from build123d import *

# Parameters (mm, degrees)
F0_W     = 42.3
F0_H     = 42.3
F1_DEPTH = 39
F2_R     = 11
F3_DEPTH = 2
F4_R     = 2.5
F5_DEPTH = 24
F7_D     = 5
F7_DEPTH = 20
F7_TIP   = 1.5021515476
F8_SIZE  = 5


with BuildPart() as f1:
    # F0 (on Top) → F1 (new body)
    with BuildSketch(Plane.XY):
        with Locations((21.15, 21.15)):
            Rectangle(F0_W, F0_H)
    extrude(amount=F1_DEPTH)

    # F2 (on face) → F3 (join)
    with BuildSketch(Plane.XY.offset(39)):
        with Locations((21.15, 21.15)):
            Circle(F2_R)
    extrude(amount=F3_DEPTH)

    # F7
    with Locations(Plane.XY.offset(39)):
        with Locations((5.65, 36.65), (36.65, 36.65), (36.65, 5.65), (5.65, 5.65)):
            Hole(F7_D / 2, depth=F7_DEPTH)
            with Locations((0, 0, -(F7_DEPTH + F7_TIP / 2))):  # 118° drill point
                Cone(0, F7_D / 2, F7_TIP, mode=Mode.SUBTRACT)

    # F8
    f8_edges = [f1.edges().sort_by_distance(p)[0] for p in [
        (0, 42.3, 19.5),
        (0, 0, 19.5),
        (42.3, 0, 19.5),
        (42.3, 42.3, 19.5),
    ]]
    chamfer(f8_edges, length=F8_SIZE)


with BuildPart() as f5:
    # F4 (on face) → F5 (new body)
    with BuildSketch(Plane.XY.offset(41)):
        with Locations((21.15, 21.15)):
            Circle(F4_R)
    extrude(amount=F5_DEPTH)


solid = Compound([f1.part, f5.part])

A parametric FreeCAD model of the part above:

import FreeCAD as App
import Part
import Sketcher


def edges_at(feature, points):
    """Names of the edges that pass closest to the given points."""
    edges = feature.Shape.Edges
    near = lambda p: min(range(len(edges)), key=lambda i: edges[i].distToShape(Part.Vertex(*p))[0])
    return sorted({f"Edge{near(p) + 1}" for p in points})


def add_polygon(sketch, points):
    """Adds a closed chain of lines whose ends are joined by coincident constraints."""
    first, n = sketch.GeometryCount, len(points)
    for a, b in zip(points, points[1:] + points[:1]):
        sketch.addGeometry(Part.LineSegment(App.Vector(*a, 0), App.Vector(*b, 0)), False)
    for i in range(n):
        sketch.addConstraint(Sketcher.Constraint("Coincident", first + i, 2, first + (i + 1) % n, 1))

doc = App.newDocument("Part")
body = doc.addObject("PartDesign::Body", "Body")

# Sketch on XY plane
sketch1 = doc.addObject("Sketcher::SketchObject", "Sketch")
body.addObject(sketch1)
sketch1.AttachmentSupport = (doc.XY_Plane, [""])
sketch1.MapMode = "FlatFace"
add_polygon(sketch1, [(0, 42.3), (0, 0), (42.3, 0), (42.3, 42.3)])  # lines 0-3
sketch1.addConstraint(Sketcher.Constraint("Vertical", 0))
sketch1.addConstraint(Sketcher.Constraint("Horizontal", 1))
sketch1.addConstraint(Sketcher.Constraint("Vertical", 2))
sketch1.addConstraint(Sketcher.Constraint("Horizontal", 3))
sketch1.addConstraint(Sketcher.Constraint("Coincident", 0, 2, -1, 1))
sketch1.addConstraint(Sketcher.Constraint("Equal", 3, 0))
sketch1.addConstraint(Sketcher.Constraint("DistanceX", 1, 1, 1, 2, 42.3))
pad1 = doc.addObject("PartDesign::Pad", "Pad")
body.addObject(pad1)
pad1.Profile = sketch1
pad1.Length = 39

# Sketch on XY plane
sketch2 = doc.addObject("Sketcher::SketchObject", "Sketch001")
body.addObject(sketch2)
sketch2.AttachmentSupport = (doc.XY_Plane, [""])
sketch2.MapMode = "FlatFace"
sketch2.AttachmentOffset = App.Placement(App.Vector(0, 0, 39), App.Rotation())
sketch2.addGeometry(Part.Circle(App.Vector(21.15, 21.15, 0), App.Vector(0, 0, 1), 11), False)
sketch2.addConstraint(Sketcher.Constraint("Diameter", 0, 22.0))
sketch2.addConstraint(Sketcher.Constraint("DistanceX", -1, 1, 0, 3, 21.15))
sketch2.addConstraint(Sketcher.Constraint("DistanceY", -1, 1, 0, 3, 21.15))
pad2 = doc.addObject("PartDesign::Pad", "Pad001")
body.addObject(pad2)
pad2.Profile = sketch2
pad2.Length = 2

# Sketch on XY plane
sketch3 = doc.addObject("Sketcher::SketchObject", "Sketch002")
body.addObject(sketch3)
sketch3.AttachmentSupport = (doc.XY_Plane, [""])
sketch3.MapMode = "FlatFace"
sketch3.AttachmentOffset = App.Placement(App.Vector(0, 0, 39), App.Rotation())
sketch3.addGeometry(Part.Circle(App.Vector(5.65, 36.65, 0), App.Vector(0, 0, 1), 2.5), False)
sketch3.addGeometry(Part.Circle(App.Vector(36.65, 36.65, 0), App.Vector(0, 0, 1), 2.5), False)
sketch3.addGeometry(Part.Circle(App.Vector(36.65, 5.65, 0), App.Vector(0, 0, 1), 2.5), False)
sketch3.addGeometry(Part.Circle(App.Vector(5.65, 5.65, 0), App.Vector(0, 0, 1), 2.5), False)
sketch3.addConstraint(Sketcher.Constraint("Equal", 0, 1))
sketch3.addConstraint(Sketcher.Constraint("Equal", 1, 2))
sketch3.addConstraint(Sketcher.Constraint("Equal", 2, 3))
sketch3.addConstraint(Sketcher.Constraint("Horizontal", 0, 3, 1, 3))
sketch3.addConstraint(Sketcher.Constraint("Horizontal", 2, 3, 3, 3))
sketch3.addConstraint(Sketcher.Constraint("Vertical", 1, 3, 2, 3))
sketch3.addConstraint(Sketcher.Constraint("Vertical", 0, 3, 3, 3))
sketch3.addConstraint(Sketcher.Constraint("Diameter", 0, 5.0))
sketch3.addConstraint(Sketcher.Constraint("DistanceX", 0, 3, 1, 3, 31.0))
sketch3.addConstraint(Sketcher.Constraint("DistanceY", 2, 3, 1, 3, 31.0))
sketch3.addConstraint(Sketcher.Constraint("DistanceX", -1, 1, 0, 3, 5.65))
sketch3.addConstraint(Sketcher.Constraint("DistanceY", -1, 1, 0, 3, 36.65))
doc.recompute()
hole = doc.addObject("PartDesign::Hole", "Hole")
body.addObject(hole)
hole.Profile = sketch3
hole.ThreadType = "None"
hole.Diameter = 5
hole.DepthType = "Dimension"
hole.Depth = 20
hole.DrillPoint = "Angled"
hole.DrillPointAngle = 118
doc.recompute()

chamfer = doc.addObject("PartDesign::Chamfer", "Chamfer")
body.addObject(chamfer)
chamfer.Base = (hole, edges_at(hole, [
    (0, 42.3, 19.5),
    (0, 0, 19.5),
    (42.3, 0, 19.5),
    (42.3, 42.3, 19.5),
]))
chamfer.Size = 5
body2 = doc.addObject("PartDesign::Body", "Body001")

# Sketch on XY plane
sketch4 = doc.addObject("Sketcher::SketchObject", "Sketch003")
body2.addObject(sketch4)
sketch4.AttachmentSupport = (doc.getObject("XY_Plane001"), [""])
sketch4.MapMode = "FlatFace"
sketch4.AttachmentOffset = App.Placement(App.Vector(0, 0, 41), App.Rotation())
sketch4.addGeometry(Part.Circle(App.Vector(21.15, 21.15, 0), App.Vector(0, 0, 1), 2.5), False)
sketch4.addConstraint(Sketcher.Constraint("Diameter", 0, 5.0))
sketch4.addConstraint(Sketcher.Constraint("DistanceX", -1, 1, 0, 3, 21.15))
sketch4.addConstraint(Sketcher.Constraint("DistanceY", -1, 1, 0, 3, 21.15))
pad3 = doc.addObject("PartDesign::Pad", "Pad002")
body2.addObject(pad3)
pad3.Profile = sketch4
pad3.Length = 24

doc.recompute()
